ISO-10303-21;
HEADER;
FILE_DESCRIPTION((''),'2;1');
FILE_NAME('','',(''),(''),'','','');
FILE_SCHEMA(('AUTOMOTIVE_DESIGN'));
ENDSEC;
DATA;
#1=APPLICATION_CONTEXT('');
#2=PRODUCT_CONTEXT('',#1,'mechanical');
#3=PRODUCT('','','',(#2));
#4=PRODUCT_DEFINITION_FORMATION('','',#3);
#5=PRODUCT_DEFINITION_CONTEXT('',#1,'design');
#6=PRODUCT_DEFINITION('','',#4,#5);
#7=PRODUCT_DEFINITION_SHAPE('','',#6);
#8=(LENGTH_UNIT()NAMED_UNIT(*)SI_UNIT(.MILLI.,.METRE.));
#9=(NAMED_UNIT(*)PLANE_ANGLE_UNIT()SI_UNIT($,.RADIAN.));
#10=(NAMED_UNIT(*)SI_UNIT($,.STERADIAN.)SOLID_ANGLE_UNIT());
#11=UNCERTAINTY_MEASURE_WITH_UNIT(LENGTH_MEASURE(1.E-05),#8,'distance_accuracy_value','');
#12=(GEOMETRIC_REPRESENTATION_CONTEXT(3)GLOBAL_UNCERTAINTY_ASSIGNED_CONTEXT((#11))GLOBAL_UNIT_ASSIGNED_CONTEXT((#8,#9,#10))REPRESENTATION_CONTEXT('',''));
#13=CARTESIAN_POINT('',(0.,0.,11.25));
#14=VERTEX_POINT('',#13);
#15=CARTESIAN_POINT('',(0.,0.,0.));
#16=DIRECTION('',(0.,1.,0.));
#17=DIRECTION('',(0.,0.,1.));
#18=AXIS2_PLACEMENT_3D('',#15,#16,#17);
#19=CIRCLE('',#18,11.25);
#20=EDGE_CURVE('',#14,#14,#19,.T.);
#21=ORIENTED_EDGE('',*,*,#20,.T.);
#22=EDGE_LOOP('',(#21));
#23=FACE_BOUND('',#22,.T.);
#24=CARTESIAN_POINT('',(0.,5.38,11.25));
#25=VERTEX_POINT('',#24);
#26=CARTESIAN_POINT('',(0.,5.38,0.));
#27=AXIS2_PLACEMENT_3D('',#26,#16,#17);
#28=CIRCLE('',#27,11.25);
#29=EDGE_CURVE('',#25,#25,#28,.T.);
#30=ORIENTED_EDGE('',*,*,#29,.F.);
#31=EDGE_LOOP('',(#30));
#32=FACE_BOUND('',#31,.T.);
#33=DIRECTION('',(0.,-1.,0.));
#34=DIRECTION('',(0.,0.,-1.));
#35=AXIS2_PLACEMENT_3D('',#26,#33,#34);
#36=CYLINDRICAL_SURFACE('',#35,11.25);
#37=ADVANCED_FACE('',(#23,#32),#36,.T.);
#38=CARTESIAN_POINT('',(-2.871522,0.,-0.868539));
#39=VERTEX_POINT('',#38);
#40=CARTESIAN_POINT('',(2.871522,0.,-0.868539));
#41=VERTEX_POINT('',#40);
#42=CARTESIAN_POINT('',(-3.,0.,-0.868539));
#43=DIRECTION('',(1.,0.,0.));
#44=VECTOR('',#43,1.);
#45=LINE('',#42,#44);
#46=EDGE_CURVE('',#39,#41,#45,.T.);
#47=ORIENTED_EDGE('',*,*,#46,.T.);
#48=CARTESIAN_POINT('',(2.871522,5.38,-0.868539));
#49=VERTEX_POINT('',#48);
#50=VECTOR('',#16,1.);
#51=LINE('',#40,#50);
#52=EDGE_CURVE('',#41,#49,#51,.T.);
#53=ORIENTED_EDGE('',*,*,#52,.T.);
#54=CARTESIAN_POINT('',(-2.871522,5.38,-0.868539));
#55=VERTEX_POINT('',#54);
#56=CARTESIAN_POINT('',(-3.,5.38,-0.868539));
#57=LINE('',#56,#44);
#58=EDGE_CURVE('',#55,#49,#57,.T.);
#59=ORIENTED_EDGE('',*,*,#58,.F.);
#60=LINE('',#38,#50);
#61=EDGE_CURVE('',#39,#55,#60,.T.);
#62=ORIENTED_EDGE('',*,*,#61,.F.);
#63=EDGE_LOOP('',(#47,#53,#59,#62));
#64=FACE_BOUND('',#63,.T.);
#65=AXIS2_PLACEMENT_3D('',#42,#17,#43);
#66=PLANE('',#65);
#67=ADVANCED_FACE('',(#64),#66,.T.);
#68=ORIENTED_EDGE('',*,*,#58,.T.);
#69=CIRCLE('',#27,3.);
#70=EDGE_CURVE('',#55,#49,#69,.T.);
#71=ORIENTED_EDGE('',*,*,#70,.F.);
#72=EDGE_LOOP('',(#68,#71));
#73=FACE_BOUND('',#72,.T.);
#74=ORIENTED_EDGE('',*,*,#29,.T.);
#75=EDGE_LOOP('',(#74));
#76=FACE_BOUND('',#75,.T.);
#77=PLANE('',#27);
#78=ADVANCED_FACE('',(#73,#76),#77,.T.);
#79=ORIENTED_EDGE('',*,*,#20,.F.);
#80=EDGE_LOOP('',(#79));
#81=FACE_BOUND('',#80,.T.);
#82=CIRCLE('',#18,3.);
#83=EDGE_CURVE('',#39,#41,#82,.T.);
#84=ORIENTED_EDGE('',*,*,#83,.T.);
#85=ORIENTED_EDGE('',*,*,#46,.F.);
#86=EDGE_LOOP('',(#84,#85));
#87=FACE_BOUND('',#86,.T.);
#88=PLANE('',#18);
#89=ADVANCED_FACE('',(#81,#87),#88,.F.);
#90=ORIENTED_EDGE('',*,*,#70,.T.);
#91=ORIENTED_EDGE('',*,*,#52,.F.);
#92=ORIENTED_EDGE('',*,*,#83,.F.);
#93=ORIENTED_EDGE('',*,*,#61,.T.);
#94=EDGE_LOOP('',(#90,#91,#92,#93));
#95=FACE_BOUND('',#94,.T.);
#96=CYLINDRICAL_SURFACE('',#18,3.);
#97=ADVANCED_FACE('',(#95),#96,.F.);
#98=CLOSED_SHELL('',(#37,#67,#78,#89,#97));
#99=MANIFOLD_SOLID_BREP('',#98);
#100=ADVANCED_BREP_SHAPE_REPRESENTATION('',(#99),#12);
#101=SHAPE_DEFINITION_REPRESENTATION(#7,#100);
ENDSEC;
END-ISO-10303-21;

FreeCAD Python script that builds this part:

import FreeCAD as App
import Part
import Sketcher
Q = App.Units.Quantity

doc = App.newDocument("Part")
body = doc.addObject("PartDesign::Body", "Body")

sketch1 = body.newObject("Sketcher::SketchObject", "Sketch")
sketch1.AttachmentSupport = (doc.getObject("XZ_Plane"), [""])
sketch1.MapMode = "FlatFace"
sketch1.addGeometry(Part.Circle(App.Vector(0, 0, 0), App.Vector(0, 0, 1), 11.25), False)
sketch1.addConstraint([
    Sketcher.Constraint("Coincident", 0, 3, -1, 1),
    Sketcher.Constraint("Diameter", 0, Q("22.5 mm")),
])
pad1 = body.newObject("PartDesign::Pad", "Pad")
pad1.Profile = sketch1
pad1.Length = 5.38
pad1.Reversed = True

sketch2 = body.newObject("Sketcher::SketchObject", "Sketch001")
sketch2.AttachmentSupport = (doc.getObject("XZ_Plane"), [""])
sketch2.MapMode = "FlatFace"
sketch2.AttachmentOffset = App.Placement(App.Vector(0, 0, -5.38), App.Rotation())
sketch2.addGeometry(Part.Circle(App.Vector(0, 0, 0), App.Vector(0, 0, 1), 3), False)
sketch2.addConstraint([
    Sketcher.Constraint("Coincident", 0, 3, -1, 1),
    Sketcher.Constraint("Diameter", 0, Q("6 mm")),
])
pocket1 = body.newObject("PartDesign::Pocket", "Pocket")
pocket1.Profile = sketch2
pocket1.Length = 5.38
pocket1.Reversed = True

sketch3 = body.newObject("Sketcher::SketchObject", "Sketch002")
sketch3.AttachmentSupport = (doc.getObject("XZ_Plane"), [""])
sketch3.MapMode = "FlatFace"
sketch3.AttachmentOffset = App.Placement(App.Vector(0, 0, -5.38), App.Rotation())
sketch3.addGeometry([
    Part.LineSegment(App.Vector(-3, -3, 0), App.Vector(-3, -0.868539, 0)),
    Part.LineSegment(App.Vector(-3, -0.868539, 0), App.Vector(2.871522, -0.868539, 0)),
    Part.LineSegment(App.Vector(2.871522, -0.868539, 0), App.Vector(2.871522, -3, 0)),
    Part.LineSegment(App.Vector(2.871522, -3, 0), App.Vector(-3, -3, 0)),
], False)
sketch3.addConstraint([
    Sketcher.Constraint("Coincident", 0, 2, 1, 1),
    Sketcher.Constraint("Coincident", 1, 2, 2, 1),
    Sketcher.Constraint("Coincident", 2, 2, 3, 1),
    Sketcher.Constraint("Coincident", 3, 2, 0, 1),
    Sketcher.Constraint("Vertical", 0),
    Sketcher.Constraint("Horizontal", 1),
    Sketcher.Constraint("Vertical", 2),
    Sketcher.Constraint("Horizontal", 3),
    Sketcher.Constraint("DistanceX", 0, 2, -1, 1, Q("3 mm")),
    Sketcher.Constraint("DistanceY", 2, 2, -1, 1, Q("3 mm")),
    Sketcher.Constraint("DistanceY", 0, 1, 0, 2, Q("2.131461 mm")),
    Sketcher.Constraint("DistanceX", 1, 1, 1, 2, Q("5.871522 mm")),
])
pad2 = body.newObject("PartDesign::Pad", "Pad001")
pad2.Profile = sketch3
pad2.Length = 5.38

doc.recompute()
